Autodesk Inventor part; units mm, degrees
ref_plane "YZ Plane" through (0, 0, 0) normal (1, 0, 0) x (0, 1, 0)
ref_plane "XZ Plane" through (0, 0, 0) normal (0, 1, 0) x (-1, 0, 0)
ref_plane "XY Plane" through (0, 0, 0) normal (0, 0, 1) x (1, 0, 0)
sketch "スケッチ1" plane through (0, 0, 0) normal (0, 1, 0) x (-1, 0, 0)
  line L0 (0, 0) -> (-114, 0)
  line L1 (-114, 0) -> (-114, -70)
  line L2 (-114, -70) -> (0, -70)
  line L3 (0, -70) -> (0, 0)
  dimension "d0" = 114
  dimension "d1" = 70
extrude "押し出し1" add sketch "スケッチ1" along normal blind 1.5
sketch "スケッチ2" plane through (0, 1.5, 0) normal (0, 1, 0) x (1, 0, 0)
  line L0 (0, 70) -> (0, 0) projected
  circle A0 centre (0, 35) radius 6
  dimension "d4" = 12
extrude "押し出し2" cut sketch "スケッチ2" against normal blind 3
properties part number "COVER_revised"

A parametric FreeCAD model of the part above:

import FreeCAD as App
import Part
import Sketcher

V = App.Vector

doc = App.newDocument("Part")
body = doc.addObject("PartDesign::Body", "Body")

# Sketch on XZ plane
sketch1 = doc.addObject("Sketcher::SketchObject", "Sketch")
body.addObject(sketch1)
sketch1.AttachmentSupport = (doc.XZ_Plane, [""])
sketch1.MapMode = "FlatFace"
sketch1.addGeometry([
    Part.LineSegment(V(0, -70, 0), V(0, 0, 0)),
    Part.LineSegment(V(0, 0, 0), V(114, 0, 0)),
    Part.LineSegment(V(114, 0, 0), V(114, -70, 0)),
    Part.LineSegment(V(114, -70, 0), V(0, -70, 0)),
], False)
sketch1.addConstraint([
    Sketcher.Constraint("Coincident", 0, 2, 1, 1),
    Sketcher.Constraint("Coincident", 1, 2, 2, 1),
    Sketcher.Constraint("Coincident", 2, 2, 3, 1),
    Sketcher.Constraint("Coincident", 3, 2, 0, 1),
    Sketcher.Constraint("Vertical", 0),
    Sketcher.Constraint("Horizontal", 1),
    Sketcher.Constraint("Vertical", 2),
    Sketcher.Constraint("Horizontal", 3),
    Sketcher.Constraint("Coincident", 0, 2, -1, 1),
    Sketcher.Constraint("DistanceX", 1, 1, 1, 2, 114.0),
    Sketcher.Constraint("DistanceY", 0, 1, 0, 2, 70.0),
])
pad1 = doc.addObject("PartDesign::Pad", "Pad")
body.addObject(pad1)
pad1.Profile = sketch1
pad1.Length = 1.5
pad1.Reversed = True

# Sketch on XZ plane
sketch2 = doc.addObject("Sketcher::SketchObject", "Sketch001")
body.addObject(sketch2)
sketch2.AttachmentSupport = (doc.XZ_Plane, [""])
sketch2.MapMode = "FlatFace"
sketch2.AttachmentOffset = App.Placement(V(0, 0, -1.5), App.Rotation())
sketch2.addGeometry(Part.Circle(V(0, -35, 0), V(0, 0, 1), 6), False)
sketch2.addConstraint([
    Sketcher.Constraint("PointOnObject", 0, 3, -2),
    Sketcher.Constraint("Diameter", 0, 12.0),
    Sketcher.Constraint("DistanceY", 0, 3, -1, 1, 35.0),
])
pocket1 = doc.addObject("PartDesign::Pocket", "Pocket")
body.addObject(pocket1)
pocket1.Profile = sketch2
pocket1.Length = 3
pocket1.Reversed = True

doc.recompute()
